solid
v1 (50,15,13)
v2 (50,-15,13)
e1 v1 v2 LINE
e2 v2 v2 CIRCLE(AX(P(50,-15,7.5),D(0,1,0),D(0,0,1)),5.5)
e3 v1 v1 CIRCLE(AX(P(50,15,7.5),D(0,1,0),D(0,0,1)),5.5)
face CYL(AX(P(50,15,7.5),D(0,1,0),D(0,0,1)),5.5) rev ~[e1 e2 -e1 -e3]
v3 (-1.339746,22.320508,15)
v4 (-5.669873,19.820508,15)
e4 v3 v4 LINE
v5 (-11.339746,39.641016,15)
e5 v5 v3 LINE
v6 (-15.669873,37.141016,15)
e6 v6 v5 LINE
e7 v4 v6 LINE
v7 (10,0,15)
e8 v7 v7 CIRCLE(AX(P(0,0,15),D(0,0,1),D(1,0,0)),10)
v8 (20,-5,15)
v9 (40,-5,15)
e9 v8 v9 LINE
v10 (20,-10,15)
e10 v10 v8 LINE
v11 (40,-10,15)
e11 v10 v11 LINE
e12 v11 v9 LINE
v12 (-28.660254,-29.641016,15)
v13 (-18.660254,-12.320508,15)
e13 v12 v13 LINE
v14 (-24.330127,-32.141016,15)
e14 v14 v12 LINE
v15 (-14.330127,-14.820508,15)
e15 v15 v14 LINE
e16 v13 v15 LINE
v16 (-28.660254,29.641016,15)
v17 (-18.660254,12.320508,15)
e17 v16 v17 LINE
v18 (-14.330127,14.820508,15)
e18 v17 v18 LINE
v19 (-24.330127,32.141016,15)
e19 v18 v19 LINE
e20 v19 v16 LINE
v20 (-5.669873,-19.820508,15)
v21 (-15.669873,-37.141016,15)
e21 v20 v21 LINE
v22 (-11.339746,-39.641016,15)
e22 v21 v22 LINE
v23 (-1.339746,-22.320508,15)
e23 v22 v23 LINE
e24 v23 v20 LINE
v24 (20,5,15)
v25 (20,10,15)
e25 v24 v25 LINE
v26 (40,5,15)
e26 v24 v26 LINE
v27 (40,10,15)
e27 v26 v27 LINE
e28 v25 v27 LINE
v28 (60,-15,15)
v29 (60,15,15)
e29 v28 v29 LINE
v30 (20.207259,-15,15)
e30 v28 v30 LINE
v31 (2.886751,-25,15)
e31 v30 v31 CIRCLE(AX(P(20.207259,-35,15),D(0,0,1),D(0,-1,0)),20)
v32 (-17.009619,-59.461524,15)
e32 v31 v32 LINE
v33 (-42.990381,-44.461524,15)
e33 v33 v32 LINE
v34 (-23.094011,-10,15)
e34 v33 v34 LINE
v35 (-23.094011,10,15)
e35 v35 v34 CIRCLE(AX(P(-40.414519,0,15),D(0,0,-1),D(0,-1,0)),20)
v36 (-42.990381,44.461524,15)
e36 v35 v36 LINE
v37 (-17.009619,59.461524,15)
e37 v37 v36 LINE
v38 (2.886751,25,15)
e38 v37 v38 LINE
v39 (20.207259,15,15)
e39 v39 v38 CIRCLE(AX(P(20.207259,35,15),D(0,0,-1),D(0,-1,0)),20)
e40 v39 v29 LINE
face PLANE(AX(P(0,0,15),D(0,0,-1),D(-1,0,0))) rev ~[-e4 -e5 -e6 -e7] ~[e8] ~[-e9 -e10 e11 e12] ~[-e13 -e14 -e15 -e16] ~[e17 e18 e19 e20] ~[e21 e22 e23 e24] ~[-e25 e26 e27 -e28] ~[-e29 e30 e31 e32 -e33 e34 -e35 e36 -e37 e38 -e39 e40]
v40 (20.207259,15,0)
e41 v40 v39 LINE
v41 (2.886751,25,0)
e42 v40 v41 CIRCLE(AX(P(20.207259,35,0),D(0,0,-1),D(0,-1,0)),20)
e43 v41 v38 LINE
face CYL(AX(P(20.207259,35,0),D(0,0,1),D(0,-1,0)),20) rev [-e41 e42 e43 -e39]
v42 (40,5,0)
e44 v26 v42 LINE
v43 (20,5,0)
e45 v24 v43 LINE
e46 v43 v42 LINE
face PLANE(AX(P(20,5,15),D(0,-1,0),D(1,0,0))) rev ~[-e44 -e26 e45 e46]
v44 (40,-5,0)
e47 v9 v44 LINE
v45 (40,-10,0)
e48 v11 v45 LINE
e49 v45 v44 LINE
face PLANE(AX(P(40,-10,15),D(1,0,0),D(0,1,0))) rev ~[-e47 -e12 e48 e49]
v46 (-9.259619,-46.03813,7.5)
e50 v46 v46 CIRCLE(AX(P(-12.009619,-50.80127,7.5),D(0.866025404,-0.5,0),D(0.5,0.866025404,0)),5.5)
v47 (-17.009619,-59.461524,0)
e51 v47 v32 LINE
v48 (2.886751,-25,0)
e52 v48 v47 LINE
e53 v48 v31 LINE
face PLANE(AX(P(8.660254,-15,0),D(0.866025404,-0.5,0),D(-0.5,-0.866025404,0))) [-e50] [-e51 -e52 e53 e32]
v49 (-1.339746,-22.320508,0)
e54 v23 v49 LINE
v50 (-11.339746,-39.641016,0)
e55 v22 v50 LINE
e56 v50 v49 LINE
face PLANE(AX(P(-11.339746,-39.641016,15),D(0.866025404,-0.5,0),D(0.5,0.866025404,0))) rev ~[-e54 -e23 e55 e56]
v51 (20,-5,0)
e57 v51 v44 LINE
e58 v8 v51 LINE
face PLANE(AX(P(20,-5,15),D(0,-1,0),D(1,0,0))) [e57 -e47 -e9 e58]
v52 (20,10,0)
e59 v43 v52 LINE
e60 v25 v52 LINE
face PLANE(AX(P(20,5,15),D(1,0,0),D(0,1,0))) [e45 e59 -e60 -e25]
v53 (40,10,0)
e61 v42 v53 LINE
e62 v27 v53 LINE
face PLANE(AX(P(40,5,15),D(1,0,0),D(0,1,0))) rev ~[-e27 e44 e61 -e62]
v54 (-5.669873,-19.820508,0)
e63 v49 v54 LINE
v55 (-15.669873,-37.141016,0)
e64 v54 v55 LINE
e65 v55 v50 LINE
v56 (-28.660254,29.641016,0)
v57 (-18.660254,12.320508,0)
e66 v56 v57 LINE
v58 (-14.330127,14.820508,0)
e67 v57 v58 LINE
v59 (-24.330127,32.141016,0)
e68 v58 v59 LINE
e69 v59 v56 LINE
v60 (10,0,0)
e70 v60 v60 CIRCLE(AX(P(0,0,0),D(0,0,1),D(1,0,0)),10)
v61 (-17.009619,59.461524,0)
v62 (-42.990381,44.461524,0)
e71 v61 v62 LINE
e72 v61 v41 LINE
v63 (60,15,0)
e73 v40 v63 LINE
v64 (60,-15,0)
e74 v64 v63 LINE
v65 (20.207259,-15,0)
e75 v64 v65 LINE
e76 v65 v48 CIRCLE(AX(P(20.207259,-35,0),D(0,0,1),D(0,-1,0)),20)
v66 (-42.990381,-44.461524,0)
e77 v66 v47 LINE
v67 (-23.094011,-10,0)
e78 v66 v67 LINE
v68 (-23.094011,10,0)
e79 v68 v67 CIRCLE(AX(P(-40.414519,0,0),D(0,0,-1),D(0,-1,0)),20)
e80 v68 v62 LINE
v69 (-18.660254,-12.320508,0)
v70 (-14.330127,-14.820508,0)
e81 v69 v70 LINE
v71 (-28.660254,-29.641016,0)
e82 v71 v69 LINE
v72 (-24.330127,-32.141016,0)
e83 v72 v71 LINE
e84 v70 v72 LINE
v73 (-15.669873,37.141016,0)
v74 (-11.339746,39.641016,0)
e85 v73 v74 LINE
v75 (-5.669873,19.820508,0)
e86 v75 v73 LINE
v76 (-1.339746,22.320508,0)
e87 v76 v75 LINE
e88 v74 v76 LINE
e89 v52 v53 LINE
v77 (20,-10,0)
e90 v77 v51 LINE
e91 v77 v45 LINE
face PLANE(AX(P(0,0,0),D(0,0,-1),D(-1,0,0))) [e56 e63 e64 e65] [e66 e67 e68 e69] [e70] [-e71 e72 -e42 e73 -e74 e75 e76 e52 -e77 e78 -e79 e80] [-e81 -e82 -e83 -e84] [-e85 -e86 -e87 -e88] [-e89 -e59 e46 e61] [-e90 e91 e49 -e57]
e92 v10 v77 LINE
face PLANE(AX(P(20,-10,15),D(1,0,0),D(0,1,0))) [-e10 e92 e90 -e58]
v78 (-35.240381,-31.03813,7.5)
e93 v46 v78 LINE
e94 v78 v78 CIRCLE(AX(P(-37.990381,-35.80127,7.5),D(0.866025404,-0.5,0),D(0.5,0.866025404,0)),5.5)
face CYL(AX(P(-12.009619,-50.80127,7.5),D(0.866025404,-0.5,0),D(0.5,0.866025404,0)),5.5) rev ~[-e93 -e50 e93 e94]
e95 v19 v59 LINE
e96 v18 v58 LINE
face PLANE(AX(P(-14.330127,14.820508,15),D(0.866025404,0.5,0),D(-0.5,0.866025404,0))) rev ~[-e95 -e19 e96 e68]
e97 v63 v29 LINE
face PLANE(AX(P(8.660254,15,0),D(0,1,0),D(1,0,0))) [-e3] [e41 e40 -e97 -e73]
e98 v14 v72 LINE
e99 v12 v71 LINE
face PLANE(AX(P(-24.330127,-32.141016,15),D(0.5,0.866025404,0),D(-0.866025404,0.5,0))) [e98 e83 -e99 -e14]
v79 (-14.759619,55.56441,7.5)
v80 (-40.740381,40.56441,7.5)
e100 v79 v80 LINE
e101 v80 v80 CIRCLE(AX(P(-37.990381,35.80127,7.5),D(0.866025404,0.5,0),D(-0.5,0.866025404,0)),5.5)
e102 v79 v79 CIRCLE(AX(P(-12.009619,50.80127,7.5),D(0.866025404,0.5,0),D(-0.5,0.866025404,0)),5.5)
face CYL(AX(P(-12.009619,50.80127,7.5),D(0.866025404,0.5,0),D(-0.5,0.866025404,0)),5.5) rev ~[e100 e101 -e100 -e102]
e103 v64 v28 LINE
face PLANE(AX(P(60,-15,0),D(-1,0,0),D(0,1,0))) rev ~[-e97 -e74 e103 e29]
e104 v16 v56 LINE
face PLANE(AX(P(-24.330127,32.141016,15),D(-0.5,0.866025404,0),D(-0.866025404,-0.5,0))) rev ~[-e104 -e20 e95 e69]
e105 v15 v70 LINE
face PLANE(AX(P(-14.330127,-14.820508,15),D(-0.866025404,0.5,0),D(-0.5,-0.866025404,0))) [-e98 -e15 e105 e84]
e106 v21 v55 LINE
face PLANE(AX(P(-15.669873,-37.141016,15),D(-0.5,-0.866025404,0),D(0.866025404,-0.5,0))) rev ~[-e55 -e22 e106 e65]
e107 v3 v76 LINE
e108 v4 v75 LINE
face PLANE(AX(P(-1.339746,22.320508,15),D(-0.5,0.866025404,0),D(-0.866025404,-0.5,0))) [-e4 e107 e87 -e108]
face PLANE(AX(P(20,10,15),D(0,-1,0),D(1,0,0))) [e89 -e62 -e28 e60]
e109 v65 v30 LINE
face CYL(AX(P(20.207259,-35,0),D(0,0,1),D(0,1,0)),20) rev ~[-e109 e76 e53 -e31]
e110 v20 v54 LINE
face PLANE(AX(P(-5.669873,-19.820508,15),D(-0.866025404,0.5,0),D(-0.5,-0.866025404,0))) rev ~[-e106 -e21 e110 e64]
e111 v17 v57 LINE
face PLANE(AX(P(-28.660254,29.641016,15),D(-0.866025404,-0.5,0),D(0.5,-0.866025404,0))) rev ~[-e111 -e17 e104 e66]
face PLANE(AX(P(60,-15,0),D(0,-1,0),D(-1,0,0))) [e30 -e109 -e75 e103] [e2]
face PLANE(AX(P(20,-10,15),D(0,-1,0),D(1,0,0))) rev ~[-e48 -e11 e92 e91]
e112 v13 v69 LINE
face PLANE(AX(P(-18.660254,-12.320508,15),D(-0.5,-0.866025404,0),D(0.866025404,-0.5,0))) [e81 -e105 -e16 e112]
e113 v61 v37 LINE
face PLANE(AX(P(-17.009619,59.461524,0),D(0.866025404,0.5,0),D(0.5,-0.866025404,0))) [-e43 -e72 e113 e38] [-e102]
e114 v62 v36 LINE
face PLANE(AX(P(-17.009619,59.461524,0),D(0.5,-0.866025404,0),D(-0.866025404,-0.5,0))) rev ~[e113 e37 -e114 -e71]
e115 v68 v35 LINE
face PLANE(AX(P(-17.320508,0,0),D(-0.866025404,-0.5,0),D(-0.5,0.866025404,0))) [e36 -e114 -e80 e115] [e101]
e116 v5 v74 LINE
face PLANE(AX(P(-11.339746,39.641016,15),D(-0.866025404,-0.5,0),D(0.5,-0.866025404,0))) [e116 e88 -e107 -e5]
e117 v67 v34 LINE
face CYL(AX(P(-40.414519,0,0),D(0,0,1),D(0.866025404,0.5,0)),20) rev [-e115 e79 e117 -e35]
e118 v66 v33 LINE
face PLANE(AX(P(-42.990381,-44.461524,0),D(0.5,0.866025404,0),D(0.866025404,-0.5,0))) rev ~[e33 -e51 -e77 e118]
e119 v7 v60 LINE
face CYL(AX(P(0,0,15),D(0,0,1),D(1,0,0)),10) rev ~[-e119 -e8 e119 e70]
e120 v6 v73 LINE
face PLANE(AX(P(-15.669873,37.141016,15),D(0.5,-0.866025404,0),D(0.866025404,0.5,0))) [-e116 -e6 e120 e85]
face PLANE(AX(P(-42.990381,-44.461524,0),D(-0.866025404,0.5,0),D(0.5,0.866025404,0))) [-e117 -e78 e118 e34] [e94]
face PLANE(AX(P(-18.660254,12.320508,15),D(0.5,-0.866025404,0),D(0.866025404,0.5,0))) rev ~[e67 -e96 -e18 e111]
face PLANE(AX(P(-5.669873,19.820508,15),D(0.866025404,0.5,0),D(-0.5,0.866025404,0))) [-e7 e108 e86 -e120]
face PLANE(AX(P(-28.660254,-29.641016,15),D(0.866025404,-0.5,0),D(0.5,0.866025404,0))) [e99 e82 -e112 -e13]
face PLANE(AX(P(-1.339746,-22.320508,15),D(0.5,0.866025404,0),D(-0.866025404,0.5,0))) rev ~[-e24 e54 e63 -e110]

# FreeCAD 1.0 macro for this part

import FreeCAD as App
import Part
import Sketcher
from FreeCAD import Vector
Q = App.Units.Quantity


def edges_at(feature, points):
    """Names of the edges that pass closest to the given points."""
    edges = feature.Shape.Edges
    near = lambda p: min(range(len(edges)), key=lambda i: edges[i].distToShape(Part.Vertex(*p))[0])
    return sorted({f"Edge{near(p) + 1}" for p in points})

doc = App.newDocument("Part")
body = doc.addObject("PartDesign::Body", "Body")

# Sketch on XY plane
sketch1 = body.newObject("Sketcher::SketchObject", "Sketch")
sketch1.AttachmentSupport = (doc.getObject("XY_Plane"), [""])
sketch1.MapMode = "FlatFace"
sketch1.addGeometry([
    Part.LineSegment(Vector(60, -15, 0), Vector(60, 15, 0)),  # 0
    Part.LineSegment(Vector(60, 15, 0), Vector(9, 15, 0)),  # 1
    Part.LineSegment(Vector(9, 15, 0), Vector(-17, 59, 0)),  # 2
    Part.LineSegment(Vector(-17, 59, 0), Vector(-43, 44, 0)),  # 3
    Part.LineSegment(Vector(-43, 44, 0), Vector(-17, 0, 0)),  # 4
    Part.LineSegment(Vector(-17, 0, 0), Vector(-43, -44, 0)),  # 5
    Part.LineSegment(Vector(-43, -44, 0), Vector(-17, -59, 0)),  # 6
    Part.LineSegment(Vector(-17, -59, 0), Vector(9, -15, 0)),  # 7
    Part.LineSegment(Vector(9, -15, 0), Vector(60, -15, 0)),  # 8
], False)
sketch1.addConstraint([
    Sketcher.Constraint("Coincident", 0, 2, 1, 1),
    Sketcher.Constraint("Coincident", 1, 2, 2, 1),
    Sketcher.Constraint("Coincident", 2, 2, 3, 1),
    Sketcher.Constraint("Coincident", 3, 2, 4, 1),
    Sketcher.Constraint("Coincident", 4, 2, 5, 1),
    Sketcher.Constraint("Coincident", 5, 2, 6, 1),
    Sketcher.Constraint("Coincident", 6, 2, 7, 1),
    Sketcher.Constraint("Coincident", 7, 2, 8, 1),
    Sketcher.Constraint("Coincident", 8, 2, 0, 1),
    Sketcher.Constraint("Vertical", 0),
    Sketcher.Constraint("Horizontal", 1),
    Sketcher.Constraint("Horizontal", 8),
    Sketcher.Constraint("Symmetric", 3, 2, 5, 2, -1),
    Sketcher.Constraint("Symmetric", 2, 2, 6, 2, -1),
    Sketcher.Constraint("Symmetric", 1, 2, 7, 2, -1),
    Sketcher.Constraint("PointOnObject", 4, 2, -1),
    Sketcher.Constraint("Perpendicular", 2, 3),
    Sketcher.Constraint("Perpendicular", 3, 4),
    Sketcher.Constraint("Equal", 2, 4),
    Sketcher.Constraint("DistanceY", 0, 1, 0, 2, Q("30 mm")),
    Sketcher.Constraint("Angle", 2, Q("120 deg")),
    Sketcher.Constraint("DistanceX", -1, 1, 0, 2, Q("60 mm")),
    Sketcher.Constraint("DistanceX", 1, 2, 1, 1, Q("51.339746 mm")),
    Sketcher.Constraint("DistanceX", 2, 2, -1, 1, Q("17.009619 mm")),
])
pad1 = body.newObject("PartDesign::Pad", "Pad")
pad1.Profile = sketch1
pad1.Length = 15

# Sketch on XY plane
sketch2 = body.newObject("Sketcher::SketchObject", "Sketch001")
sketch2.AttachmentSupport = (doc.getObject("XY_Plane"), [""])
sketch2.MapMode = "FlatFace"
sketch2.AttachmentOffset = App.Placement(Vector(0, 0, 15), App.Rotation())
sketch2.addGeometry([
    Part.Circle(Vector(0, 0, 0), Vector(0, 0, 1), 10),  # 0
    Part.LineSegment(Vector(-11, -40, 0), Vector(-1, -22, 0)),  # 1
    Part.LineSegment(Vector(-1, -22, 0), Vector(-6, -20, 0)),  # 2
    Part.LineSegment(Vector(-6, -20, 0), Vector(-16, -37, 0)),  # 3
    Part.LineSegment(Vector(-16, -37, 0), Vector(-11, -40, 0)),  # 4
    Part.LineSegment(Vector(20, 10, 0), Vector(20, 5, 0)),  # 5
    Part.LineSegment(Vector(20, 5, 0), Vector(40, 5, 0)),  # 6
    Part.LineSegment(Vector(40, 5, 0), Vector(40, 10, 0)),  # 7
    Part.LineSegment(Vector(40, 10, 0), Vector(20, 10, 0)),  # 8
    Part.LineSegment(Vector(20, -5, 0), Vector(20, -10, 0)),  # 9
    Part.LineSegment(Vector(20, -10, 0), Vector(40, -10, 0)),  # 10
    Part.LineSegment(Vector(40, -10, 0), Vector(40, -5, 0)),  # 11
    Part.LineSegment(Vector(40, -5, 0), Vector(20, -5, 0)),  # 12
    Part.LineSegment(Vector(-29, -30, 0), Vector(-24, -32, 0)),  # 13
    Part.LineSegment(Vector(-24, -32, 0), Vector(-14, -15, 0)),  # 14
    Part.LineSegment(Vector(-14, -15, 0), Vector(-19, -12, 0)),  # 15
    Part.LineSegment(Vector(-19, -12, 0), Vector(-29, -30, 0)),  # 16
    Part.LineSegment(Vector(-29, 30, 0), Vector(-19, 12, 0)),  # 17
    Part.LineSegment(Vector(-19, 12, 0), Vector(-14, 15, 0)),  # 18
    Part.LineSegment(Vector(-14, 15, 0), Vector(-24, 32, 0)),  # 19
    Part.LineSegment(Vector(-24, 32, 0), Vector(-29, 30, 0)),  # 20
    Part.LineSegment(Vector(-11, 40, 0), Vector(-16, 37, 0)),  # 21
    Part.LineSegment(Vector(-16, 37, 0), Vector(-6, 20, 0)),  # 22
    Part.LineSegment(Vector(-6, 20, 0), Vector(-1, 22, 0)),  # 23
    Part.LineSegment(Vector(-1, 22, 0), Vector(-11, 40, 0)),  # 24
], False)
sketch2.addConstraint([
    Sketcher.Constraint("Coincident", 1, 2, 2, 1),
    Sketcher.Constraint("Coincident", 2, 2, 3, 1),
    Sketcher.Constraint("Coincident", 3, 2, 4, 1),
    Sketcher.Constraint("Coincident", 4, 2, 1, 1),
    Sketcher.Constraint("Coincident", 5, 2, 6, 1),
    Sketcher.Constraint("Coincident", 6, 2, 7, 1),
    Sketcher.Constraint("Coincident", 7, 2, 8, 1),
    Sketcher.Constraint("Coincident", 8, 2, 5, 1),
    Sketcher.Constraint("Coincident", 9, 2, 10, 1),
    Sketcher.Constraint("Coincident", 10, 2, 11, 1),
    Sketcher.Constraint("Coincident", 11, 2, 12, 1),
    Sketcher.Constraint("Coincident", 12, 2, 9, 1),
    Sketcher.Constraint("Coincident", 13, 2, 14, 1),
    Sketcher.Constraint("Coincident", 14, 2, 15, 1),
    Sketcher.Constraint("Coincident", 15, 2, 16, 1),
    Sketcher.Constraint("Coincident", 16, 2, 13, 1),
    Sketcher.Constraint("Coincident", 17, 2, 18, 1),
    Sketcher.Constraint("Coincident", 18, 2, 19, 1),
    Sketcher.Constraint("Coincident", 19, 2, 20, 1),
    Sketcher.Constraint("Coincident", 20, 2, 17, 1),
    Sketcher.Constraint("Coincident", 21, 2, 22, 1),
    Sketcher.Constraint("Coincident", 22, 2, 23, 1),
    Sketcher.Constraint("Coincident", 23, 2, 24, 1),
    Sketcher.Constraint("Coincident", 24, 2, 21, 1),
    Sketcher.Constraint("Vertical", 5),
    Sketcher.Constraint("Horizontal", 6),
    Sketcher.Constraint("Vertical", 7),
    Sketcher.Constraint("Horizontal", 8),
    Sketcher.Constraint("Vertical", 9),
    Sketcher.Constraint("Horizontal", 10),
    Sketcher.Constraint("Vertical", 11),
    Sketcher.Constraint("Horizontal", 12),
    Sketcher.Constraint("Coincident", 0, 3, -1, 1),
    Sketcher.Constraint("Symmetric", 8, 2, 9, 2, -1),
    Sketcher.Constraint("Symmetric", 6, 2, 11, 2, -1),
    Sketcher.Constraint("Symmetric", 15, 2, 17, 2, -1),
    Sketcher.Constraint("Symmetric", 14, 2, 18, 2, -1),
    Sketcher.Constraint("Symmetric", 13, 2, 19, 2, -1),
    Sketcher.Constraint("Symmetric", 16, 2, 20, 2, -1),
    Sketcher.Constraint("Symmetric", 3, 2, 21, 2, -1),
    Sketcher.Constraint("Symmetric", 2, 2, 22, 2, -1),
    Sketcher.Constraint("Symmetric", 1, 2, 23, 2, -1),
    Sketcher.Constraint("Symmetric", 4, 2, 24, 2, -1),
    Sketcher.Constraint("Perpendicular", 1, 2),
    Sketcher.Constraint("Perpendicular", 2, 3),
    Sketcher.Constraint("Perpendicular", 3, 4),
    Sketcher.Constraint("Parallel", 4, 13),
    Sketcher.Constraint("Perpendicular", 13, 14),
    Sketcher.Constraint("Perpendicular", 14, 15),
    Sketcher.Constraint("Perpendicular", 15, 16),
    Sketcher.Constraint("Equal", 4, 13),
    Sketcher.Constraint("Equal", 3, 14),
    Sketcher.Constraint("Diameter", 0, Q("20 mm")),
    Sketcher.Constraint("DistanceX", 6, 1, 6, 2, Q("20 mm")),
    Sketcher.Constraint("DistanceY", 5, 2, 5, 1, Q("5 mm")),
    Sketcher.Constraint("Angle", 1, Q("60 deg")),
    Sketcher.Constraint("Distance", 1, Q("20 mm")),
    Sketcher.Constraint("Distance", 2, Q("5 mm")),
    Sketcher.Constraint("DistanceX", -1, 1, 5, 2, Q("20 mm")),
    Sketcher.Constraint("DistanceY", -1, 1, 5, 2, Q("5 mm")),
    Sketcher.Constraint("DistanceY", 3, 2, 13, 2, Q("5 mm")),
    Sketcher.Constraint("DistanceY", 1, 2, -1, 1, Q("22.320508 mm")),
    Sketcher.Constraint("DistanceX", 13, 2, 4, 2, Q("12.990381 mm")),
    Sketcher.Constraint("DistanceX", 1, 2, -1, 1, Q("1.339746 mm")),
])
pocket1 = body.newObject("PartDesign::Pocket", "Pocket")
pocket1.Profile = sketch2
pocket1.Length = 15

# Sketch on an angled plane
sketch3 = body.newObject("Sketcher::SketchObject", "Sketch002")
sketch3.Placement = App.Placement(Vector(12.990381, -7.5, 0), App.Rotation(Vector(0, 0, -1), Vector(0.5, 0.866025404, 0), Vector(0.866025404, -0.5, 0), "ZXY"))
sketch3.addGeometry(Part.Circle(Vector(-8, -50, 0), Vector(0, 0, 1), 6), False)
sketch3.addConstraint([
    Sketcher.Constraint("Diameter", 0, Q("11 mm")),
    Sketcher.Constraint("DistanceY", 0, 3, -1, 1, Q("50 mm")),
    Sketcher.Constraint("DistanceX", 0, 3, -1, 1, Q("7.5 mm")),
])
pocket2 = body.newObject("PartDesign::Pocket", "Pocket001")
pocket2.Profile = sketch3
pocket2.Length = 50
doc.recompute()

fillet = body.newObject("PartDesign::Fillet", "Fillet")
fillet.Base = (pocket2, edges_at(pocket2, [(8.66, -15, 7.5)]))
fillet.Radius = 20
doc.recompute()

fillet2 = body.newObject("PartDesign::Fillet", "Fillet001")
fillet2.Base = (fillet, edges_at(fillet, [(8.66, 15, 7.5)]))
fillet2.Radius = 20
doc.recompute()

fillet3 = body.newObject("PartDesign::Fillet", "Fillet002")
fillet3.Base = (fillet2, edges_at(fillet2, [(-17.321, 0, 7.5)]))
fillet3.Radius = 20

# Sketch on an angled plane
sketch4 = body.newObject("Sketcher::SketchObject", "Sketch003")
sketch4.Placement = App.Placement(Vector(12.990381, 7.5, 0), App.Rotation(Vector(0, 0, -1), Vector(-0.5, 0.866025404, 0), Vector(0.866025404, 0.5, 0), "ZXY"))
sketch4.addGeometry(Part.Circle(Vector(-8, 50, 0), Vector(0, 0, 1), 6), False)
sketch4.addConstraint([
    Sketcher.Constraint("Diameter", 0, Q("11 mm")),
    Sketcher.Constraint("DistanceY", -1, 1, 0, 3, Q("50 mm")),
    Sketcher.Constraint("DistanceX", 0, 3, -1, 1, Q("7.5 mm")),
])
pocket3 = body.newObject("PartDesign::Pocket", "Pocket002")
pocket3.Profile = sketch4
pocket3.Length = 50

# Sketch on XZ plane
sketch5 = body.newObject("Sketcher::SketchObject", "Sketch004")
sketch5.AttachmentSupport = (doc.getObject("XZ_Plane"), [""])
sketch5.MapMode = "FlatFace"
sketch5.AttachmentOffset = App.Placement(Vector(0, 0, -15), App.Rotation())
sketch5.addGeometry(Part.Circle(Vector(50, 8, 0), Vector(0, 0, 1), 6), False)
sketch5.addConstraint([
    Sketcher.Constraint("Diameter", 0, Q("11 mm")),
    Sketcher.Constraint("DistanceX", -1, 1, 0, 3, Q("50 mm")),
    Sketcher.Constraint("DistanceY", -1, 1, 0, 3, Q("7.5 mm")),
])
pocket4 = body.newObject("PartDesign::Pocket", "Pocket003")
pocket4.Profile = sketch5
pocket4.Length = 50
pocket4.Reversed = True

doc.recompute()
